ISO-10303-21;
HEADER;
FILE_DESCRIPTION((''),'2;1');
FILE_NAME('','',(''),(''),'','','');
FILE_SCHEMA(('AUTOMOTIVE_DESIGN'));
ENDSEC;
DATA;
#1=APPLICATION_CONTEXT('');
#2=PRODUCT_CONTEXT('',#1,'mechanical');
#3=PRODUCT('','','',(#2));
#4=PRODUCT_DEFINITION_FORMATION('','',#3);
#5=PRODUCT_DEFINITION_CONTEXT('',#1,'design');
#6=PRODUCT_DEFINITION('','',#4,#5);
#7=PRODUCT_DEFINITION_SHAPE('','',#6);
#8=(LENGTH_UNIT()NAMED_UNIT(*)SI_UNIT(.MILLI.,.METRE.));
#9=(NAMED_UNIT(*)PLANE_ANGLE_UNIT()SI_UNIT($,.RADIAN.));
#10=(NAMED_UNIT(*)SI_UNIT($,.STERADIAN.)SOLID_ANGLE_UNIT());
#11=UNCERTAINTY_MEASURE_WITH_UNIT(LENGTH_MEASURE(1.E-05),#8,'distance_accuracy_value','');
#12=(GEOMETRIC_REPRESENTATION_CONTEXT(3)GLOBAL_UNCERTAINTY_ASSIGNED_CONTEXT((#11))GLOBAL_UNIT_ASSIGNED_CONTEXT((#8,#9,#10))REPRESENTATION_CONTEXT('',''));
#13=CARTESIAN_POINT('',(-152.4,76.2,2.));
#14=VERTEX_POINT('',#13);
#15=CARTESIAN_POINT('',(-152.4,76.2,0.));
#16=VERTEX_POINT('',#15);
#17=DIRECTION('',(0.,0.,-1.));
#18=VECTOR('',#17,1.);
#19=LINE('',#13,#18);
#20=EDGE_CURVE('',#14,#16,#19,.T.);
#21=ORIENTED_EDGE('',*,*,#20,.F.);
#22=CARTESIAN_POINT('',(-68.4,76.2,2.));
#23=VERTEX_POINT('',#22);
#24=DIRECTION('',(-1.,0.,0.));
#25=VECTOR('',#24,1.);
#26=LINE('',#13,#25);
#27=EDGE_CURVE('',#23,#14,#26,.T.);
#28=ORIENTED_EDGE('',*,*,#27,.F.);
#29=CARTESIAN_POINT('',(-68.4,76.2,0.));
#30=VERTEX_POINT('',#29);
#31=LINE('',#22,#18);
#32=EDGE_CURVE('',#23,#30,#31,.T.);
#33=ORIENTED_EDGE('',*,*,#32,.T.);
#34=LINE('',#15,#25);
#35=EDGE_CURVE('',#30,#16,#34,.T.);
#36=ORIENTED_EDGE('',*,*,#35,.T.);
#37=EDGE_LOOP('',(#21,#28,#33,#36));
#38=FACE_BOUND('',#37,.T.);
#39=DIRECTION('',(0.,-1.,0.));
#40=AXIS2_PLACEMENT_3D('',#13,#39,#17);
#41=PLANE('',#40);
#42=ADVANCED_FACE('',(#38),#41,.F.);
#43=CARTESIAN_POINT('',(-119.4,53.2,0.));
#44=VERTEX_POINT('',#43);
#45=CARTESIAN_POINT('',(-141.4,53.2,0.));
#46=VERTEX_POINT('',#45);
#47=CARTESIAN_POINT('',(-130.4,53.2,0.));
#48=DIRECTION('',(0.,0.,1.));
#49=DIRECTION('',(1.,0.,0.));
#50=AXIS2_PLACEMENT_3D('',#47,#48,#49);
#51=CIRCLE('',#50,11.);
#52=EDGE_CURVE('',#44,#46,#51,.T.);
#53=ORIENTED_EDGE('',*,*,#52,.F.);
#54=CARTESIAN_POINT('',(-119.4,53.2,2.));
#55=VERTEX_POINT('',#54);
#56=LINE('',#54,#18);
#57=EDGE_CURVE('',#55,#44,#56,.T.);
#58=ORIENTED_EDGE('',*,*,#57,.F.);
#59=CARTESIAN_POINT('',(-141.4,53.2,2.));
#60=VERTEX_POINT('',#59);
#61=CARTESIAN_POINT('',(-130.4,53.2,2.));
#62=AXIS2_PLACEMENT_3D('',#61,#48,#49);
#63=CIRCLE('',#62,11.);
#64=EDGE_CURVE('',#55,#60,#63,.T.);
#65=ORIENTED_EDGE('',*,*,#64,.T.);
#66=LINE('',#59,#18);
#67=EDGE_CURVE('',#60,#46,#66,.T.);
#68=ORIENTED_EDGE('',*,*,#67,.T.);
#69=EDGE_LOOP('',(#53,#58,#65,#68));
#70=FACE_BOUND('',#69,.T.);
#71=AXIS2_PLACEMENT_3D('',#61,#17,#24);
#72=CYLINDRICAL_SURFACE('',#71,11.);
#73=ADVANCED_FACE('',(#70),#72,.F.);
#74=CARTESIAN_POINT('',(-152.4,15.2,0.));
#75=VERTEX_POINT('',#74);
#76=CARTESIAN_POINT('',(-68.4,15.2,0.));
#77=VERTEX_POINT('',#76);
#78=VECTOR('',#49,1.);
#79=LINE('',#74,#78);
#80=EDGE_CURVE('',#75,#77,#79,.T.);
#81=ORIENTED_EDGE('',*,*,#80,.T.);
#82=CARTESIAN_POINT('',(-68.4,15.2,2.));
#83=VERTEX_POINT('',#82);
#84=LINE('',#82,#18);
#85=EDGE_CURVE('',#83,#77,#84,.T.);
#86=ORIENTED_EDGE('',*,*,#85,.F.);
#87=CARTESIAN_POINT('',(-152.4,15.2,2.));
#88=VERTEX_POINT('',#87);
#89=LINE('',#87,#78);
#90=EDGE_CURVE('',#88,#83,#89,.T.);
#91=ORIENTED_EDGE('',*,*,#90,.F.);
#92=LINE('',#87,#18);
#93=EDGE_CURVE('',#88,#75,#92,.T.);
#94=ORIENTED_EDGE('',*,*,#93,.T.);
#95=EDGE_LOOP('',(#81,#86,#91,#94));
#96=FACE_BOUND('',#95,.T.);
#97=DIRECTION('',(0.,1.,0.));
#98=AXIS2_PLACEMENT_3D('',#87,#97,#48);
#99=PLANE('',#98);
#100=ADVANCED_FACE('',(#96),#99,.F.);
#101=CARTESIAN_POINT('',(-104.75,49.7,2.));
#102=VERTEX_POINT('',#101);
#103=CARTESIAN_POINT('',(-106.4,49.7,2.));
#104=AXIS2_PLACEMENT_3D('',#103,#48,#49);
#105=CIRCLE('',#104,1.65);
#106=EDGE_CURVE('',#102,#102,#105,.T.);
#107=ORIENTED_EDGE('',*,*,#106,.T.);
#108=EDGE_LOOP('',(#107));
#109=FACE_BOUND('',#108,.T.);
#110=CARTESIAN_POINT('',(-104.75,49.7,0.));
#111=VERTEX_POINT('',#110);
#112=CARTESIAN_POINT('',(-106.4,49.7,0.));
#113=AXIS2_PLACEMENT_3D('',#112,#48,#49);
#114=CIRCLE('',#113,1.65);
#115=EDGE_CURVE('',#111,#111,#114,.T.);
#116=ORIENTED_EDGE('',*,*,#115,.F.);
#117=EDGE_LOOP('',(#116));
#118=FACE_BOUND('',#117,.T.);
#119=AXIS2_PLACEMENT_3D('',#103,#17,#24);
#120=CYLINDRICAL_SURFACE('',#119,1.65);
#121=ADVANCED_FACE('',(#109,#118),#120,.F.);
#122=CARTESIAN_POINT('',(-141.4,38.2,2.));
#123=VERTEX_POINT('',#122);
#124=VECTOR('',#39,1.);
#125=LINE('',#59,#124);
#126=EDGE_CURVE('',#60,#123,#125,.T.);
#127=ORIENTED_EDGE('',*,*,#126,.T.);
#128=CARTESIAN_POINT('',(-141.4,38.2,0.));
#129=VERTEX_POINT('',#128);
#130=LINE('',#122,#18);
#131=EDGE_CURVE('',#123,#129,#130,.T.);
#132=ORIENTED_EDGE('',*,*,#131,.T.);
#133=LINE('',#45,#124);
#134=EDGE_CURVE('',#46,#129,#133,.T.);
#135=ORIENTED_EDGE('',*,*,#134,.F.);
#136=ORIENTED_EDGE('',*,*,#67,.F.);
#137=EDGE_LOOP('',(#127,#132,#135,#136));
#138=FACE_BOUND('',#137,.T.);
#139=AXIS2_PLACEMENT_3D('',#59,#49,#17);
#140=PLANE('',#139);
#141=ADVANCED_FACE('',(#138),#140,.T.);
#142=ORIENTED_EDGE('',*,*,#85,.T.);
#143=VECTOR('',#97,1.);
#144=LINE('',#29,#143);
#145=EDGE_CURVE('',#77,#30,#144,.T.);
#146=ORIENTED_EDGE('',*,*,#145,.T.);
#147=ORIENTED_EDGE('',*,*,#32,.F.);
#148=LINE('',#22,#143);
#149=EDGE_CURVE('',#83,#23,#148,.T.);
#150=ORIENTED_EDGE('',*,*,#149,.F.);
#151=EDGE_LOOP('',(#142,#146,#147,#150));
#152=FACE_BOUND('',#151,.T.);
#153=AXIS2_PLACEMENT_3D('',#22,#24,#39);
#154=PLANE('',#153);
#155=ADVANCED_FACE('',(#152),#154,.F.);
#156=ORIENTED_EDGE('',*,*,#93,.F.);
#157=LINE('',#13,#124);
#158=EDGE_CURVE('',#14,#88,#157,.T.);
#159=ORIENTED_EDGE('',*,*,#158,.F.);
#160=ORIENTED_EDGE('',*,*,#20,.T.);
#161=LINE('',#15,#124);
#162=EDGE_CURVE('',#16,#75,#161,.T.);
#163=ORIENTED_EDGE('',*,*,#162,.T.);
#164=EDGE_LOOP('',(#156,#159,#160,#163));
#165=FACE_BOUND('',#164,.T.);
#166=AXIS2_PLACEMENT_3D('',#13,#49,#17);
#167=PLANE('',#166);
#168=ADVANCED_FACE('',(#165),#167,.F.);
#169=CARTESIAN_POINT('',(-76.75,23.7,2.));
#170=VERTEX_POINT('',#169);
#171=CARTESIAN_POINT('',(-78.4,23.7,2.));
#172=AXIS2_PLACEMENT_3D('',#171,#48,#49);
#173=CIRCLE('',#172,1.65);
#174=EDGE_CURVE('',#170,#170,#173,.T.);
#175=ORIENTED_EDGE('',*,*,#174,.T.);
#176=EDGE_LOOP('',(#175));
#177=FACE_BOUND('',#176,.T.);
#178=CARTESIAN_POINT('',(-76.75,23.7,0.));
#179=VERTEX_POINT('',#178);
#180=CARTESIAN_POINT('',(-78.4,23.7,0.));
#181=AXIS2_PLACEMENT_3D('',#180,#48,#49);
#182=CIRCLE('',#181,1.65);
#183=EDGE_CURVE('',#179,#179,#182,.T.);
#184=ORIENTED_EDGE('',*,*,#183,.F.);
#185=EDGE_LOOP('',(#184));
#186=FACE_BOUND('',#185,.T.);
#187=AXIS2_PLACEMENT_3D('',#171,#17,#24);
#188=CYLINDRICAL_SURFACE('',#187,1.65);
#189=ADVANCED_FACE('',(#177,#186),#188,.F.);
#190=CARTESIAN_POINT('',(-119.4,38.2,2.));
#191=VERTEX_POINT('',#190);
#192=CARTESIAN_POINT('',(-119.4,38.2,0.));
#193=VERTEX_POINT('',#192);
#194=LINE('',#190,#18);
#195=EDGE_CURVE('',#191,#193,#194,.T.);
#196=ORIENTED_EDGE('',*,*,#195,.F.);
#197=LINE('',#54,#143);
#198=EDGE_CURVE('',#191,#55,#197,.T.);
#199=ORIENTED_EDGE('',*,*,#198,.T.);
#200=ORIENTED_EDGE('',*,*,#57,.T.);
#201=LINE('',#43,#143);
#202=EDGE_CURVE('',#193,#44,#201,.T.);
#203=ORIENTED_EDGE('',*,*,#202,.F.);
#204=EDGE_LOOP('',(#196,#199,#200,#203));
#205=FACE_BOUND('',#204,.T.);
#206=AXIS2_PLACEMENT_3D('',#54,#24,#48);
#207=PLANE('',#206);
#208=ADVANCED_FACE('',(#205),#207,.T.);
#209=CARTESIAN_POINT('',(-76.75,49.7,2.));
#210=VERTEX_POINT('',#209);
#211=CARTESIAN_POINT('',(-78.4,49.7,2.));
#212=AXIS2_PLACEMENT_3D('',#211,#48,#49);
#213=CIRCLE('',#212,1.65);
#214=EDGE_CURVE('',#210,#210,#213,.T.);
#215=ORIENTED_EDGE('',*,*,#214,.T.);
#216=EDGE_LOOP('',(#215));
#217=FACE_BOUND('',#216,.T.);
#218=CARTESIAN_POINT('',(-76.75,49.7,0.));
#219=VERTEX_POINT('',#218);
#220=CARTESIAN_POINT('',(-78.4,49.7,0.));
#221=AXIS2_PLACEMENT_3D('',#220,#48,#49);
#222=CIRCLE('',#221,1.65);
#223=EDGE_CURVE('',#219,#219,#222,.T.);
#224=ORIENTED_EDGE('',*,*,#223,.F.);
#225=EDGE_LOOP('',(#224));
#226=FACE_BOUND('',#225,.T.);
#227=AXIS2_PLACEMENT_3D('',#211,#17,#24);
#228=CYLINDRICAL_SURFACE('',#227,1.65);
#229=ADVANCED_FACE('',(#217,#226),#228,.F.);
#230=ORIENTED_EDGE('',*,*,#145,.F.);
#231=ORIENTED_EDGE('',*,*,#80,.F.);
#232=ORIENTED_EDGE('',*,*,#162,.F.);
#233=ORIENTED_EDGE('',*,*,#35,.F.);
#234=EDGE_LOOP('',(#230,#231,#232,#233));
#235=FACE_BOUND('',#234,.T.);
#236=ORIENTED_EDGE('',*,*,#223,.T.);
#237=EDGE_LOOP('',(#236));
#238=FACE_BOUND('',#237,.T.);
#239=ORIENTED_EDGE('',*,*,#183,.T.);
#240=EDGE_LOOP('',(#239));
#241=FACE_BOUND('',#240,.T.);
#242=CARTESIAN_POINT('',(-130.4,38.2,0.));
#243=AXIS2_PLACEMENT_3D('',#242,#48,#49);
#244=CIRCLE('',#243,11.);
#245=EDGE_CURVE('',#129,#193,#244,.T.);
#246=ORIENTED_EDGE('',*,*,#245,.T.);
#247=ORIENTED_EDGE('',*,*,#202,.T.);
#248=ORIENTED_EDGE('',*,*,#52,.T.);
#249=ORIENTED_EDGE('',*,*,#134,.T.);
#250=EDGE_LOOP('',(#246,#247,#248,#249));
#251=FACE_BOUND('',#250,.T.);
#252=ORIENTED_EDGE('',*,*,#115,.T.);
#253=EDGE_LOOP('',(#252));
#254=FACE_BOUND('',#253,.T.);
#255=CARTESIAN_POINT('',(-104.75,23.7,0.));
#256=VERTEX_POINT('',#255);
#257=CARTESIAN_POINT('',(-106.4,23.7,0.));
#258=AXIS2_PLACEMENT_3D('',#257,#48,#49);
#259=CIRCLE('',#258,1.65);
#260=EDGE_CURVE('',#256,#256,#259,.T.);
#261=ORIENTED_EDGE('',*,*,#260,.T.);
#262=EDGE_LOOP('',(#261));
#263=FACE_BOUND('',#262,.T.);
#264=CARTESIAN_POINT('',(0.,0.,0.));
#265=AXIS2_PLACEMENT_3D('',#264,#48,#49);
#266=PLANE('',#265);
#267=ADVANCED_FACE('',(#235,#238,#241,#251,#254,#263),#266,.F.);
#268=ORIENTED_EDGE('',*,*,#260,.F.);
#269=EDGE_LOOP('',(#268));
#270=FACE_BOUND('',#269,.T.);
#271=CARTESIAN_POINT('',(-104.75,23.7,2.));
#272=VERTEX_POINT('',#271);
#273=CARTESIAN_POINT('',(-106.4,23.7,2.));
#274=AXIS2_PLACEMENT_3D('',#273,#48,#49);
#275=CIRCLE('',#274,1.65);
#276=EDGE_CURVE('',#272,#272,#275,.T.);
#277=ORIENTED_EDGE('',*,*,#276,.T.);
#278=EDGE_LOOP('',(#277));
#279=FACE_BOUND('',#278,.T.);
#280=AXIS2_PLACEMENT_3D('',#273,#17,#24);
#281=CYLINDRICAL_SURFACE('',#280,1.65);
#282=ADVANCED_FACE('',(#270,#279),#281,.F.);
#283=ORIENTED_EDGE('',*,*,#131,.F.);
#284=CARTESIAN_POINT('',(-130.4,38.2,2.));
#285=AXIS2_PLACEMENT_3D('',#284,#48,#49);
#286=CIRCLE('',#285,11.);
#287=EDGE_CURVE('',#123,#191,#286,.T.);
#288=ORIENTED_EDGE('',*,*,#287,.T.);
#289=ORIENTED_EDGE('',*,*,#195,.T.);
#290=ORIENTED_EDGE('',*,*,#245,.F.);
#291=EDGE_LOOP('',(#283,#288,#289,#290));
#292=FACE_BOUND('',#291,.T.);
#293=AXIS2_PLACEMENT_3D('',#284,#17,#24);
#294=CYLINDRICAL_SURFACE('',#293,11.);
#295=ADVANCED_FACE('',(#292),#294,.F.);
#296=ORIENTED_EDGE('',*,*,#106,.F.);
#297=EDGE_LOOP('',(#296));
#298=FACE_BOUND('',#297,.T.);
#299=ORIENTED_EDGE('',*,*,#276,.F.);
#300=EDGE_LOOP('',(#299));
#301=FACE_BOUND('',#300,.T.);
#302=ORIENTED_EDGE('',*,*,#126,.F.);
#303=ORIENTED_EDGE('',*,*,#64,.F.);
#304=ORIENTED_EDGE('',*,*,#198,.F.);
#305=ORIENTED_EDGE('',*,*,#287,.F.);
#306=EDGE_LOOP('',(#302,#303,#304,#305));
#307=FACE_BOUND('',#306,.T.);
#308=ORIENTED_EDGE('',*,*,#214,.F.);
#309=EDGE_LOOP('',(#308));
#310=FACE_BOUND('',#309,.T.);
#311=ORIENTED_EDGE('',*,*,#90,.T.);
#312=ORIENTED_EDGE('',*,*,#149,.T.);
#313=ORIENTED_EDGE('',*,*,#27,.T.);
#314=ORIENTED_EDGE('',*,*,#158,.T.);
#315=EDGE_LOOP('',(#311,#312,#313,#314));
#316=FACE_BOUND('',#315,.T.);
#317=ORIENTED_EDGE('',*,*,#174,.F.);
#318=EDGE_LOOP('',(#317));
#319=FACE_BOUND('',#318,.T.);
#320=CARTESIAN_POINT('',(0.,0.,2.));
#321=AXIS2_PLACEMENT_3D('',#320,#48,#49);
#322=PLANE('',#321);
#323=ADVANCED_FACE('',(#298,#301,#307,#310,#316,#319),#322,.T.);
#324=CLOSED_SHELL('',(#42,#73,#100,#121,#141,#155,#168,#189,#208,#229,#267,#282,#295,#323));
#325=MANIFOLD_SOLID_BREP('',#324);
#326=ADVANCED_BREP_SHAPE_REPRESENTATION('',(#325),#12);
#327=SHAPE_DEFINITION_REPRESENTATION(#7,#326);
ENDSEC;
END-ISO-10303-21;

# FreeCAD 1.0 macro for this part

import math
import FreeCAD as App
import Part
import Sketcher
Q = App.Units.Quantity

doc = App.newDocument("Part")
body = doc.addObject("PartDesign::Body", "Body")

sketch1 = body.newObject("Sketcher::SketchObject", "Sketch")
sketch1.AttachmentSupport = (doc.getObject("XY_Plane"), [""])
sketch1.MapMode = "FlatFace"
sketch1.addGeometry([
    Part.LineSegment(App.Vector(-152.4, 76.2, 0), App.Vector(-152.4, 15.2, 0)),
    Part.LineSegment(App.Vector(-152.4, 15.2, 0), App.Vector(-68.4, 15.2, 0)),
    Part.LineSegment(App.Vector(-68.4, 15.2, 0), App.Vector(-68.4, 76.2, 0)),
    Part.LineSegment(App.Vector(-68.4, 76.2, 0), App.Vector(-152.4, 76.2, 0)),
    Part.Circle(App.Vector(-106.4, 23.7, 0), App.Vector(0, 0, 1), 1.6),
    Part.Circle(App.Vector(-78.4, 23.7, 0), App.Vector(0, 0, 1), 1.6),
    Part.ArcOfCircle(Part.Circle(App.Vector(-130.4, 53.2, 0), App.Vector(0, 0, 1), 11), math.radians(0), math.radians(180)),
    Part.LineSegment(App.Vector(-119.4, 53.2, 0), App.Vector(-119.4, 38.2, 0)),
    Part.ArcOfCircle(Part.Circle(App.Vector(-130.4, 38.2, 0), App.Vector(0, 0, 1), 11), math.radians(180), math.radians(360)),
    Part.LineSegment(App.Vector(-141.4, 38.2, 0), App.Vector(-141.4, 53.2, 0)),
    Part.Circle(App.Vector(-106.4, 49.7, 0), App.Vector(0, 0, 1), 1.6),
    Part.Circle(App.Vector(-78.4, 49.7, 0), App.Vector(0, 0, 1), 1.6),
], False)
sketch1.addConstraint([
    Sketcher.Constraint("Coincident", 0, 2, 1, 1),
    Sketcher.Constraint("Coincident", 1, 2, 2, 1),
    Sketcher.Constraint("Coincident", 2, 2, 3, 1),
    Sketcher.Constraint("Coincident", 3, 2, 0, 1),
    Sketcher.Constraint("Tangent", 6, 1, 7, 1),
    Sketcher.Constraint("Tangent", 7, 2, 8, 2),
    Sketcher.Constraint("Tangent", 8, 1, 9, 1),
    Sketcher.Constraint("Tangent", 9, 2, 6, 2),
    Sketcher.Constraint("Vertical", 0),
    Sketcher.Constraint("Horizontal", 1),
    Sketcher.Constraint("Vertical", 2),
    Sketcher.Constraint("Horizontal", 3),
    Sketcher.Constraint("Vertical", 7),
    Sketcher.Constraint("Vertical", 9),
    Sketcher.Constraint("Equal", 4, 5),
    Sketcher.Constraint("Equal", 5, 10),
    Sketcher.Constraint("Equal", 10, 11),
    Sketcher.Constraint("Horizontal", 4, 3, 5, 3),
    Sketcher.Constraint("Horizontal", 10, 3, 11, 3),
    Sketcher.Constraint("Vertical", 4, 3, 10, 3),
    Sketcher.Constraint("Vertical", 5, 3, 11, 3),
    Sketcher.Constraint("Radius", 6, Q("11 mm")),
    Sketcher.Constraint("Diameter", 4, Q("3.3 mm")),
    Sketcher.Constraint("DistanceX", 1, 1, 1, 2, Q("84 mm")),
    Sketcher.Constraint("DistanceY", 0, 2, 0, 1, Q("61 mm")),
    Sketcher.Constraint("DistanceY", 7, 2, 7, 1, Q("15 mm")),
    Sketcher.Constraint("DistanceX", 4, 3, 5, 3, Q("28 mm")),
    Sketcher.Constraint("DistanceX", 6, 3, 4, 3, Q("24 mm")),
    Sketcher.Constraint("DistanceY", 4, 3, 10, 3, Q("26 mm")),
    Sketcher.Constraint("DistanceX", 0, 2, 8, 3, Q("22 mm")),
    Sketcher.Constraint("DistanceY", 0, 2, 8, 3, Q("23 mm")),
    Sketcher.Constraint("DistanceX", 4, 3, -1, 1, Q("106.4 mm")),
    Sketcher.Constraint("DistanceY", -1, 1, 4, 3, Q("23.7 mm")),
    Sketcher.Constraint("DistanceY", -1, 1, 6, 3, Q("53.2 mm")),
])
pad1 = body.newObject("PartDesign::Pad", "Pad")
pad1.Profile = sketch1
pad1.Length = 2

doc.recompute()
